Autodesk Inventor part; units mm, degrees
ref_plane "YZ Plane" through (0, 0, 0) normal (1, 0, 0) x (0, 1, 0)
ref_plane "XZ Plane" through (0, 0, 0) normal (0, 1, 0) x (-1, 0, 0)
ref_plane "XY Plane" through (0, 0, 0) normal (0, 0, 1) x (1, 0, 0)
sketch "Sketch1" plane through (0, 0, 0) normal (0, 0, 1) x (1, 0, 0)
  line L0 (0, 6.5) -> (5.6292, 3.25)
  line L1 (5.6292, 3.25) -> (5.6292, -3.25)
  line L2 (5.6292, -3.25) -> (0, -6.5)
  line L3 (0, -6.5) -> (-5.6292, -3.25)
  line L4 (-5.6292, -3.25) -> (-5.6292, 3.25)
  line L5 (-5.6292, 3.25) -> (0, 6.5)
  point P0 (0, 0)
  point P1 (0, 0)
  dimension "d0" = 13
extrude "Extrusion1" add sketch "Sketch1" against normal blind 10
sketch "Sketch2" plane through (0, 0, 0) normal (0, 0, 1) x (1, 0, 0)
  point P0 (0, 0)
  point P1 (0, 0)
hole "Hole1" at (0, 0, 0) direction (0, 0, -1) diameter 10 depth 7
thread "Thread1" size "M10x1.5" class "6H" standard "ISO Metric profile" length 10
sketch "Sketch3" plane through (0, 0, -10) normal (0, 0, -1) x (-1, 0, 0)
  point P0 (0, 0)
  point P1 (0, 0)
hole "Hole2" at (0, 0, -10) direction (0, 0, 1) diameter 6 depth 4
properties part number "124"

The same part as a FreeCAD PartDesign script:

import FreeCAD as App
import Part
import Sketcher
from FreeCAD import Vector
Q = App.Units.Quantity


def add_polygon(sketch, points):
    """Adds a closed chain of lines whose ends are joined by coincident constraints."""
    first, n = sketch.GeometryCount, len(points)
    for a, b in zip(points, points[1:] + points[:1]):
        sketch.addGeometry(Part.LineSegment(App.Vector(*a, 0), App.Vector(*b, 0)), False)
    for i in range(n):
        sketch.addConstraint(Sketcher.Constraint("Coincident", first + i, 2, first + (i + 1) % n, 1))

doc = App.newDocument("Part")
body = doc.addObject("PartDesign::Body", "Body")

# Sketch on XY plane
sketch1 = body.newObject("Sketcher::SketchObject", "Sketch")
sketch1.AttachmentSupport = (doc.getObject("XY_Plane"), [""])
sketch1.MapMode = "FlatFace"
add_polygon(sketch1, [(6, 3), (0, 6), (-6, 3), (-6, -3), (0, -6), (6, -3)])  # lines 0-5
sketch1.addConstraint(Sketcher.Constraint("Vertical", 2))
sketch1.addConstraint(Sketcher.Constraint("Vertical", 5))
sketch1.addConstraint(Sketcher.Constraint("Symmetric", 0, 2, 3, 2, -1, 1))
sketch1.addConstraint(Sketcher.Constraint("Symmetric", 1, 2, 4, 2, -1, 1))
sketch1.addConstraint(Sketcher.Constraint("PointOnObject", 0, 2, -2))
sketch1.addConstraint(Sketcher.Constraint("Parallel", 0, 3))
sketch1.addConstraint(Sketcher.Constraint("Horizontal", 2, 2, 4, 2))
sketch1.addConstraint(Sketcher.Constraint("DistanceY", 3, 2, 0, 2, Q("13 mm")))
sketch1.addConstraint(Sketcher.Constraint("Angle", 0, Q("150.0002 deg")))
sketch1.addConstraint(Sketcher.Constraint("DistanceY", 2, 2, 2, 1, Q("6.5 mm")))
pad1 = body.newObject("PartDesign::Pad", "Pad")
pad1.Profile = sketch1
pad1.Length = 10
pad1.Reversed = True

# Sketch on XY plane
sketch2 = body.newObject("Sketcher::SketchObject", "Sketch001")
sketch2.AttachmentSupport = (doc.getObject("XY_Plane"), [""])
sketch2.MapMode = "FlatFace"
sketch2.addGeometry(Part.Circle(Vector(0, 0, 0), Vector(0, 0, 1), 5), False)
sketch2.addConstraint(Sketcher.Constraint("Coincident", 0, 3, -1, 1))
sketch2.addConstraint(Sketcher.Constraint("Diameter", 0, Q("10 mm")))
doc.recompute()
hole = body.newObject("PartDesign::Hole", "Hole")
hole.Profile = sketch2
hole.ThreadType = "None"
hole.Diameter = 10
hole.DepthType = "Dimension"
hole.Depth = 7
hole.DrillPoint = "Flat"

# Sketch on XY plane
sketch3 = body.newObject("Sketcher::SketchObject", "Sketch002")
sketch3.AttachmentSupport = (doc.getObject("XY_Plane"), [""])
sketch3.MapMode = "FlatFace"
sketch3.AttachmentOffset = App.Placement(Vector(0, 0, -10), App.Rotation())
sketch3.addGeometry(Part.Circle(Vector(0, 0, 0), Vector(0, 0, 1), 3), False)
sketch3.addConstraint(Sketcher.Constraint("Coincident", 0, 3, -1, 1))
sketch3.addConstraint(Sketcher.Constraint("Diameter", 0, Q("6 mm")))
doc.recompute()
hole2 = body.newObject("PartDesign::Hole", "Hole001")
hole2.Profile = sketch3
hole2.ThreadType = "None"
hole2.Diameter = 6
hole2.DepthType = "Dimension"
hole2.Depth = 4
hole2.DrillPoint = "Flat"
hole2.Reversed = True

doc.recompute()
